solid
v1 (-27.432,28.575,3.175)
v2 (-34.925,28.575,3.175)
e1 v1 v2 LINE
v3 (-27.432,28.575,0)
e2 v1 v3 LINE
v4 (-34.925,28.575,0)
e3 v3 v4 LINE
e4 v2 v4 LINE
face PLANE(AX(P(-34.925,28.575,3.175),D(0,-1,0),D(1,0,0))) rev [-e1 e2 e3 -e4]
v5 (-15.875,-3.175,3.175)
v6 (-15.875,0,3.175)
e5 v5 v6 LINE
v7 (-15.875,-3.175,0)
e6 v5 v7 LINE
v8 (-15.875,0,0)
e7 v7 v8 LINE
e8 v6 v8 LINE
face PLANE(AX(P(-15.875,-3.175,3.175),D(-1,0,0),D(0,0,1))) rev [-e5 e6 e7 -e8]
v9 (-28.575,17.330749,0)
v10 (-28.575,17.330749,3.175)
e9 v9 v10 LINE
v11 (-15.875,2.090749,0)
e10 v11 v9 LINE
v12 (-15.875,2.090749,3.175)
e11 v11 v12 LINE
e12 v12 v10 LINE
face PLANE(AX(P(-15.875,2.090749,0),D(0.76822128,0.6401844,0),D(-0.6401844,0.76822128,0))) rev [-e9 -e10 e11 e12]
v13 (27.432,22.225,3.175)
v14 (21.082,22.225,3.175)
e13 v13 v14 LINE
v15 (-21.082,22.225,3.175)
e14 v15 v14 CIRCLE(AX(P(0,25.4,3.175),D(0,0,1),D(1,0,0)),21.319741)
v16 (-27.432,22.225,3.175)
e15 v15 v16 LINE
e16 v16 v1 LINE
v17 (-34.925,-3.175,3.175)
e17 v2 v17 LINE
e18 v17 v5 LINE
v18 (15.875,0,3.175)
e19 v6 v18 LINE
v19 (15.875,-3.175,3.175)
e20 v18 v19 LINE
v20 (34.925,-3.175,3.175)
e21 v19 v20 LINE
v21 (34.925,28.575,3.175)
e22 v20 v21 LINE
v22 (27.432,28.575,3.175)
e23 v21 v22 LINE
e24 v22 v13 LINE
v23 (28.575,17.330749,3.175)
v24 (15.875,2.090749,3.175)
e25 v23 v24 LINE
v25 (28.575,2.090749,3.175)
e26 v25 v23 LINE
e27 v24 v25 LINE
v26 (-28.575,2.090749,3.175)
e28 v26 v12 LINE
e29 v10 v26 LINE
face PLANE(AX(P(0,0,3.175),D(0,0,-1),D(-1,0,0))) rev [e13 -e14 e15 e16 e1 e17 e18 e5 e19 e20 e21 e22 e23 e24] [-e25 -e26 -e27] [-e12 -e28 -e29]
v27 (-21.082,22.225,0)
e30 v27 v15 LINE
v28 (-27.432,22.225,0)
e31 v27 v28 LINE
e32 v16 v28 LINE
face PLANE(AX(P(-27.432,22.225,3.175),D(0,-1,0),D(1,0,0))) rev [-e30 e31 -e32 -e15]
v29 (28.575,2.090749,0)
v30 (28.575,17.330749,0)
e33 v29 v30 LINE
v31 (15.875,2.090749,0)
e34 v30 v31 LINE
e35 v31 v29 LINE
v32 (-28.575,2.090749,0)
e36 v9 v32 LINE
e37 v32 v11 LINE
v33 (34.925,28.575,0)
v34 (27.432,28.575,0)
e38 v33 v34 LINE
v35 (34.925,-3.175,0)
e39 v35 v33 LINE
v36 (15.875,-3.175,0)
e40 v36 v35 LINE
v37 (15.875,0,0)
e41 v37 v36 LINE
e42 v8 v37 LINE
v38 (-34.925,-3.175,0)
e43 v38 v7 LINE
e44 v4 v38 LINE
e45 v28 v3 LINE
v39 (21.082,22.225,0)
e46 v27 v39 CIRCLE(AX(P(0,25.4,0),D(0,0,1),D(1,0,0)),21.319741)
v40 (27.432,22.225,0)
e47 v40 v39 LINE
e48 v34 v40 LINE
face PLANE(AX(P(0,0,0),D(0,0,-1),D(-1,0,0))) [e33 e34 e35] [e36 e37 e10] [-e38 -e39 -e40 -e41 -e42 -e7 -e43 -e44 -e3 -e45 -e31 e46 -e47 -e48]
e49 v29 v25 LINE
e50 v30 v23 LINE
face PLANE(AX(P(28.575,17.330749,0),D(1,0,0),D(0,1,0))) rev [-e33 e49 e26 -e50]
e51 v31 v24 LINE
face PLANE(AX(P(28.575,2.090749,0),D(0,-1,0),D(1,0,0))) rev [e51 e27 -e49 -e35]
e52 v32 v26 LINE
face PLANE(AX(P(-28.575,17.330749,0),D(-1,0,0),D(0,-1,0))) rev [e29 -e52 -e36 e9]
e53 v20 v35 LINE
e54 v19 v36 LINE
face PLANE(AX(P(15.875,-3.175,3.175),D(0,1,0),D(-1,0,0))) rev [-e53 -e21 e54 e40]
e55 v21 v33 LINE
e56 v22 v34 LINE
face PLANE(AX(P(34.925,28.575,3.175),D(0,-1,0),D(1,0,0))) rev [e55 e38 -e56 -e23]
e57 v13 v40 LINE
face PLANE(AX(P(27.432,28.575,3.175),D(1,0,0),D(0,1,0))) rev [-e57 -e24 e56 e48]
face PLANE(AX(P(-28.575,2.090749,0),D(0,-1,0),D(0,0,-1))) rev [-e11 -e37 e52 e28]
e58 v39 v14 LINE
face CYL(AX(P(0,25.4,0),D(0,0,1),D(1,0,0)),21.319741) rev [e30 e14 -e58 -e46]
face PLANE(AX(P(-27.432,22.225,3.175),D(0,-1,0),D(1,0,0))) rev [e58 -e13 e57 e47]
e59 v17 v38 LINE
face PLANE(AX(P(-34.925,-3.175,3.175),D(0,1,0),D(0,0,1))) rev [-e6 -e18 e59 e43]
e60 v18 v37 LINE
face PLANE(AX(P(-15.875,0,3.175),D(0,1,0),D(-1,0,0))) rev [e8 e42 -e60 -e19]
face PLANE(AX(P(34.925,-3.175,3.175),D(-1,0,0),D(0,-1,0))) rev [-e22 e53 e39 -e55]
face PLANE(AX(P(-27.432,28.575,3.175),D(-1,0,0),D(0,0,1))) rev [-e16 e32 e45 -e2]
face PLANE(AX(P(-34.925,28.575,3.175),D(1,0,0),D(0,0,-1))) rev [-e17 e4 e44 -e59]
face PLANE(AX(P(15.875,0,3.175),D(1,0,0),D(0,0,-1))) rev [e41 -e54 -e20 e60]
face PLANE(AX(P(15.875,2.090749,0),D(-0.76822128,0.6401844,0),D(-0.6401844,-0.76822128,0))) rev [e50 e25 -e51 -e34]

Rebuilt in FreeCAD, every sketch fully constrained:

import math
import FreeCAD as App
import Part
import Sketcher

V = App.Vector
Q = App.Units.Quantity

doc = App.newDocument("Part")
params = doc.addObject("Spreadsheet::Sheet", "Params")
for row, (alias, value) in enumerate([
    ("sketch1_width", "0.75 in"),
    ("sketch1_width2", "2.16 in"),
    ("sketch1_height", "0.125 in"),
    ("pad1_length", "0.125 in"),
    ("sketch2_width", "0.5 in"),
    ("sketch2_height", "0.6 in"),
    ("sketch2_width2", "1.66 in"),
], start=1):
    params.set(f"A{row}", alias)
    params.set(f"B{row}", "=" + value)
    params.setAlias(f"B{row}", alias)

body = doc.addObject("PartDesign::Body", "Body")

# Sketch on XY plane
sketch1 = body.newObject("Sketcher::SketchObject", "Sketch")
sketch1.AttachmentSupport = (doc.getObject("XY_Plane"), [""])
sketch1.MapMode = "FlatFace"
sketch1.addGeometry([
    Part.LineSegment(V(-34.9, 28.6, 0), V(-34.9, -3.2, 0)),  # 0
    Part.LineSegment(V(-34.9, -3.2, 0), V(-15.9, -3.2, 0)),  # 1
    Part.LineSegment(V(-15.9, -3.2, 0), V(-15.9, 0, 0)),  # 2
    Part.LineSegment(V(-15.9, 0, 0), V(15.9, 0, 0)),  # 3
    Part.LineSegment(V(15.9, 0, 0), V(15.9, -3.2, 0)),  # 4
    Part.LineSegment(V(15.9, -3.2, 0), V(34.9, -3.2, 0)),  # 5
    Part.LineSegment(V(34.9, -3.2, 0), V(34.9, 28.6, 0)),  # 6
    Part.LineSegment(V(34.9, 28.6, 0), V(27.4, 28.6, 0)),  # 7
    Part.LineSegment(V(27.4, 28.6, 0), V(27.4, 22.2, 0)),  # 8
    Part.LineSegment(V(27.4, 22.2, 0), V(-27.4, 22.2, 0)),  # 9
    Part.LineSegment(V(-27.4, 22.2, 0), V(-27.4, 28.6, 0)),  # 10
    Part.LineSegment(V(-27.4, 28.6, 0), V(-34.9, 28.6, 0)),  # 11
], False)
sketch1.addConstraint([
    Sketcher.Constraint("Coincident", 0, 2, 1, 1),
    Sketcher.Constraint("Coincident", 1, 2, 2, 1),
    Sketcher.Constraint("Coincident", 2, 2, 3, 1),
    Sketcher.Constraint("Coincident", 3, 2, 4, 1),
    Sketcher.Constraint("Coincident", 4, 2, 5, 1),
    Sketcher.Constraint("Coincident", 5, 2, 6, 1),
    Sketcher.Constraint("Coincident", 6, 2, 7, 1),
    Sketcher.Constraint("Coincident", 7, 2, 8, 1),
    Sketcher.Constraint("Coincident", 8, 2, 9, 1),
    Sketcher.Constraint("Coincident", 9, 2, 10, 1),
    Sketcher.Constraint("Coincident", 10, 2, 11, 1),
    Sketcher.Constraint("Coincident", 11, 2, 0, 1),
    Sketcher.Constraint("Vertical", 0),
    Sketcher.Constraint("Horizontal", 1),
    Sketcher.Constraint("Vertical", 2),
    Sketcher.Constraint("Horizontal", 3),
    Sketcher.Constraint("Vertical", 4),
    Sketcher.Constraint("Horizontal", 5),
    Sketcher.Constraint("Vertical", 6),
    Sketcher.Constraint("Horizontal", 7),
    Sketcher.Constraint("Vertical", 8),
    Sketcher.Constraint("Horizontal", 9),
    Sketcher.Constraint("Vertical", 10),
    Sketcher.Constraint("Horizontal", 11),
    Sketcher.Constraint("Symmetric", 2, 2, 3, 2, -1, 1),
    Sketcher.Constraint("Symmetric", 0, 2, 5, 2, -2),
    Sketcher.Constraint("Symmetric", 7, 2, 10, 2, -2),
    Sketcher.Constraint("Equal", 3, 0),
    Sketcher.Constraint("DistanceX", 0, 2, 3, 2, Q("2 in")),
    Sketcher.Constraint("DistanceY", 5, 2, 8, 2, Q("1 in")),
    Sketcher.Constraint("DistanceX", 1, 1, 1, 2, Q("0.75 in")),
    Sketcher.Constraint("DistanceX", 9, 2, 9, 1, Q("2.16 in")),
    Sketcher.Constraint("DistanceY", 2, 1, 2, 2, Q("0.125 in")),
])
sketch1.setExpression("Constraints[30]", "Params.sketch1_width")
sketch1.setExpression("Constraints[31]", "Params.sketch1_width2")
sketch1.setExpression("Constraints[32]", "Params.sketch1_height")
pad1 = body.newObject("PartDesign::Pad", "Pad")
pad1.Profile = sketch1
pad1.setExpression("Length", "Params.pad1_length")

# Sketch on XY plane
sketch2 = body.newObject("Sketcher::SketchObject", "Sketch001")
sketch2.AttachmentSupport = (doc.getObject("XY_Plane"), [""])
sketch2.MapMode = "FlatFace"
sketch2.AttachmentOffset = App.Placement(V(0, 0, 0.125 * 25.4), App.Rotation())
sketch2.addGeometry([
    Part.LineSegment(V(21, 22, 0), V(-21, 22, 0)),  # 0
    Part.ArcOfCircle(Part.Circle(V(0, 25, 0), V(0, 0, 1), 21), math.radians(-171), math.radians(-9)),  # 1
    Part.LineSegment(V(-29, 17, 0), V(-29, 2, 0)),  # 2
    Part.LineSegment(V(-29, 2, 0), V(-16, 2, 0)),  # 3
    Part.LineSegment(V(-16, 2, 0), V(-29, 17, 0)),  # 4
    Part.LineSegment(V(16, 2, 0), V(29, 2, 0)),  # 5
    Part.LineSegment(V(29, 2, 0), V(29, 17, 0)),  # 6
    Part.LineSegment(V(29, 17, 0), V(16, 2, 0)),  # 7
], False)
sketch2.addConstraint([
    Sketcher.Constraint("Coincident", 0, 1, 1, 2),
    Sketcher.Constraint("Coincident", 1, 1, 0, 2),
    Sketcher.Constraint("Coincident", 2, 2, 3, 1),
    Sketcher.Constraint("Coincident", 3, 2, 4, 1),
    Sketcher.Constraint("Coincident", 4, 2, 2, 1),
    Sketcher.Constraint("Coincident", 5, 2, 6, 1),
    Sketcher.Constraint("Coincident", 6, 2, 7, 1),
    Sketcher.Constraint("Coincident", 7, 2, 5, 1),
    Sketcher.Constraint("Horizontal", 0),
    Sketcher.Constraint("Vertical", 2),
    Sketcher.Constraint("Horizontal", 3),
    Sketcher.Constraint("Horizontal", 5),
    Sketcher.Constraint("Vertical", 6),
    Sketcher.Constraint("Symmetric", 2, 2, 5, 2, -2),
    Sketcher.Constraint("PointOnObject", 1, 3, -2),
    Sketcher.Constraint("Horizontal", 4, 2, 6, 2),
    Sketcher.Constraint("Equal", 3, 5),
    Sketcher.Constraint("DistanceX", 3, 1, 3, 2, Q("0.5 in")),
    Sketcher.Constraint("DistanceY", 2, 2, 2, 1, Q("0.6 in")),
    Sketcher.Constraint("DistanceY", -1, 1, 1, 3, Q("1 in")),
    Sketcher.Constraint("DistanceX", 0, 2, 0, 1, Q("1.66 in")),
    Sketcher.Constraint("DistanceX", 3, 2, 5, 2, Q("1.75 in")),
    Sketcher.Constraint("DistanceY", -1, 1, 0, 1, Q("0.875 in")),
    Sketcher.Constraint("DistanceY", -1, 1, 2, 2, 2.090749),
])
sketch2.setExpression("Constraints[17]", "Params.sketch2_width")
sketch2.setExpression("Constraints[18]", "Params.sketch2_height")
sketch2.setExpression("Constraints[20]", "Params.sketch2_width2")
pocket1 = body.newObject("PartDesign::Pocket", "Pocket")
pocket1.Profile = sketch2
pocket1.Type = "ThroughAll"

doc.recompute()
